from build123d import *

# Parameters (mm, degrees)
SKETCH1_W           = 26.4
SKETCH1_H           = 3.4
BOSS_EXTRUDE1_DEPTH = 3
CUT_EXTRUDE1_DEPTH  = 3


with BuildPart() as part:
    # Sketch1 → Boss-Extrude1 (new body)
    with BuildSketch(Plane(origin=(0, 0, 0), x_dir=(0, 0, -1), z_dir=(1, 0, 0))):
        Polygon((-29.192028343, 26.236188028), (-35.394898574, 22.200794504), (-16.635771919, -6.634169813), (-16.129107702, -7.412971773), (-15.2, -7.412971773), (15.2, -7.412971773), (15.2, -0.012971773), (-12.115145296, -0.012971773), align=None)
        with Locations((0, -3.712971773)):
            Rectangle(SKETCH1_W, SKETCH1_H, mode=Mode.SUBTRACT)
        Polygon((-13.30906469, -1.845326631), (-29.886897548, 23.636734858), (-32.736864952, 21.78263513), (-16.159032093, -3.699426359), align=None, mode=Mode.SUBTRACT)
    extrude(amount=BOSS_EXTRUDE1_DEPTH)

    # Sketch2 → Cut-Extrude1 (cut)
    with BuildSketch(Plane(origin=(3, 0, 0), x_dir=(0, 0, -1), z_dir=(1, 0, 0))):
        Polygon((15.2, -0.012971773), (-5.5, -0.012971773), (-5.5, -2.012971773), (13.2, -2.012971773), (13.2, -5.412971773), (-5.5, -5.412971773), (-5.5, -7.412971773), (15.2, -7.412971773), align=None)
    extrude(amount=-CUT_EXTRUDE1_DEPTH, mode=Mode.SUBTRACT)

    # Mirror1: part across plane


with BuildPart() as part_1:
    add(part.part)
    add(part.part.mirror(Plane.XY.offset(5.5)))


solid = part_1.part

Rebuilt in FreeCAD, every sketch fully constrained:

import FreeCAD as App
import Part
import Sketcher
Q = App.Units.Quantity

doc = App.newDocument("Part")
params = doc.addObject("Spreadsheet::Sheet", "Params")
for row, (alias, value) in enumerate([
    ("sketch1_width", "7.4 mm"),
    ("sketch1_width2", "3.4 mm"),
    ("sketch1_height", "26.4 mm"),
    ("sketch1_length", "7.4 mm"),
    ("sketch1_length2", "34.4 mm"),
    ("pad1_length", "3 mm"),
    ("sketch2_width", "2 mm"),
    ("sketch2_width2", "3.4 mm"),
    ("sketch2_height", "20.7 mm"),
    ("sketch2_height2", "18.7 mm"),
    ("pocket1_length", "3 mm"),
], start=1):
    params.set(f"A{row}", alias)
    params.set(f"B{row}", "=" + value)
    params.setAlias(f"B{row}", alias)

body = doc.addObject("PartDesign::Body", "Body")

# Sketch on YZ plane
sketch1 = doc.addObject("Sketcher::SketchObject", "Sketch")
body.addObject(sketch1)
sketch1.AttachmentSupport = (doc.YZ_Plane, [""])
sketch1.MapMode = "FlatFace"
sketch1.addGeometry(Part.LineSegment(App.Vector(26.2, 29.2, 0), App.Vector(22.2, 35.4, 0)), False)
sketch1.addGeometry(Part.LineSegment(App.Vector(22.2, 35.4, 0), App.Vector(-6.6, 16.6, 0)), False)
sketch1.addGeometry(Part.LineSegment(App.Vector(-6.6, 16.6, 0), App.Vector(-7.4, 16.1, 0)), False)
sketch1.addGeometry(Part.LineSegment(App.Vector(-7.4, 16.1, 0), App.Vector(-7.4, -15.2, 0)), False)
sketch1.addGeometry(Part.LineSegment(App.Vector(-7.4, -15.2, 0), App.Vector(0, -15.2, 0)), False)
sketch1.addGeometry(Part.LineSegment(App.Vector(0, -15.2, 0), App.Vector(0, 12.1, 0)), False)
sketch1.addGeometry(Part.LineSegment(App.Vector(0, 12.1, 0), App.Vector(26.2, 29.2, 0)), False)
sketch1.addGeometry(Part.LineSegment(App.Vector(-5.4, -13.2, 0), App.Vector(-5.4, 13.2, 0)), False)
sketch1.addGeometry(Part.LineSegment(App.Vector(-5.4, 13.2, 0), App.Vector(-2, 13.2, 0)), False)
sketch1.addGeometry(Part.LineSegment(App.Vector(-2, 13.2, 0), App.Vector(-2, -13.2, 0)), False)
sketch1.addGeometry(Part.LineSegment(App.Vector(-2, -13.2, 0), App.Vector(-5.4, -13.2, 0)), False)
sketch1.addGeometry(Part.LineSegment(App.Vector(23.6, 29.9, 0), App.Vector(-1.8, 13.3, 0)), False)
sketch1.addGeometry(Part.LineSegment(App.Vector(-1.8, 13.3, 0), App.Vector(-3.7, 16.2, 0)), False)
sketch1.addGeometry(Part.LineSegment(App.Vector(-3.7, 16.2, 0), App.Vector(21.8, 32.7, 0)), False)
sketch1.addGeometry(Part.LineSegment(App.Vector(21.8, 32.7, 0), App.Vector(23.6, 29.9, 0)), False)
sketch1.addConstraint(Sketcher.Constraint("Coincident", 0, 2, 1, 1))
sketch1.addConstraint(Sketcher.Constraint("Coincident", 1, 2, 2, 1))
sketch1.addConstraint(Sketcher.Constraint("Coincident", 2, 2, 3, 1))
sketch1.addConstraint(Sketcher.Constraint("Coincident", 3, 2, 4, 1))
sketch1.addConstraint(Sketcher.Constraint("Coincident", 4, 2, 5, 1))
sketch1.addConstraint(Sketcher.Constraint("Coincident", 5, 2, 6, 1))
sketch1.addConstraint(Sketcher.Constraint("Coincident", 6, 2, 0, 1))
sketch1.addConstraint(Sketcher.Constraint("Coincident", 7, 2, 8, 1))
sketch1.addConstraint(Sketcher.Constraint("Coincident", 8, 2, 9, 1))
sketch1.addConstraint(Sketcher.Constraint("Coincident", 9, 2, 10, 1))
sketch1.addConstraint(Sketcher.Constraint("Coincident", 10, 2, 7, 1))
sketch1.addConstraint(Sketcher.Constraint("Coincident", 11, 2, 12, 1))
sketch1.addConstraint(Sketcher.Constraint("Coincident", 12, 2, 13, 1))
sketch1.addConstraint(Sketcher.Constraint("Coincident", 13, 2, 14, 1))
sketch1.addConstraint(Sketcher.Constraint("Coincident", 14, 2, 11, 1))
sketch1.addConstraint(Sketcher.Constraint("Vertical", 3))
sketch1.addConstraint(Sketcher.Constraint("Horizontal", 4))
sketch1.addConstraint(Sketcher.Constraint("Vertical", 5))
sketch1.addConstraint(Sketcher.Constraint("Vertical", 7))
sketch1.addConstraint(Sketcher.Constraint("Horizontal", 8))
sketch1.addConstraint(Sketcher.Constraint("Vertical", 9))
sketch1.addConstraint(Sketcher.Constraint("Horizontal", 10))
sketch1.addConstraint(Sketcher.Constraint("Perpendicular", 0, 1))
sketch1.addConstraint(Sketcher.Constraint("Parallel", 1, 2))
sketch1.addConstraint(Sketcher.Constraint("Parallel", 2, 6))
sketch1.addConstraint(Sketcher.Constraint("Parallel", 6, 11))
sketch1.addConstraint(Sketcher.Constraint("Perpendicular", 11, 12))
sketch1.addConstraint(Sketcher.Constraint("Perpendicular", 12, 13))
sketch1.addConstraint(Sketcher.Constraint("Perpendicular", 13, 14))
sketch1.addConstraint(Sketcher.Constraint("DistanceX", 4, 1, 4, 2, Q("7.4 mm")))
sketch1.addConstraint(Sketcher.Constraint("DistanceX", 8, 1, 8, 2, Q("3.4 mm")))
sketch1.addConstraint(Sketcher.Constraint("DistanceY", 7, 1, 7, 2, Q("26.4 mm")))
sketch1.addConstraint(Sketcher.Constraint("DistanceX", 2, 2, 7, 2, Q("2 mm")))
sketch1.addConstraint(Sketcher.Constraint("DistanceY", 4, 2, 9, 2, Q("2 mm")))
sketch1.addConstraint(Sketcher.Constraint("Distance", 0, Q("7.4 mm")))
sketch1.addConstraint(Sketcher.Constraint("Distance", 1, Q("34.4 mm")))
sketch1.addConstraint(Sketcher.Constraint("Distance", 11, Q("30.4 mm")))
sketch1.addConstraint(Sketcher.Constraint("Distance", 12, Q("3.4 mm")))
sketch1.addConstraint(Sketcher.Constraint("DistanceY", 3, 2, -1, 1, Q("15.2 mm")))
sketch1.addConstraint(Sketcher.Constraint("DistanceY", 14, 2, 0, 2, Q("5.508001 mm")))
sketch1.addConstraint(Sketcher.Constraint("DistanceY", -1, 1, 0, 2, Q("35.394899 mm")))
sketch1.addConstraint(Sketcher.Constraint("DistanceX", 2, 2, 1, 2, Q("0.778802 mm")))
sketch1.addConstraint(Sketcher.Constraint("DistanceX", 12, 2, 11, 2, Q("1.8541 mm")))
sketch1.addConstraint(Sketcher.Constraint("DistanceX", 1, 2, -1, 1, Q("6.63417 mm")))
sketch1.addConstraint(Sketcher.Constraint("DistanceX", 13, 2, 0, 2, Q("0.418159 mm")))
sketch1.setExpression("Constraints[29]", "Params.sketch1_width")
sketch1.setExpression("Constraints[30]", "Params.sketch1_width2")
sketch1.setExpression("Constraints[31]", "Params.sketch1_height")
sketch1.setExpression("Constraints[34]", "Params.sketch1_length")
sketch1.setExpression("Constraints[35]", "Params.sketch1_length2")
pad1 = doc.addObject("PartDesign::Pad", "Pad")
body.addObject(pad1)
pad1.Profile = sketch1
pad1.setExpression("Length", "Params.pad1_length")

# Sketch on YZ plane
sketch2 = doc.addObject("Sketcher::SketchObject", "Sketch001")
body.addObject(sketch2)
sketch2.AttachmentSupport = (doc.YZ_Plane, [""])
sketch2.MapMode = "FlatFace"
sketch2.AttachmentOffset = App.Placement(App.Vector(0, 0, 3), App.Rotation())
sketch2.addGeometry(Part.LineSegment(App.Vector(0, -15.2, 0), App.Vector(0, 5.5, 0)), False)
sketch2.addGeometry(Part.LineSegment(App.Vector(0, 5.5, 0), App.Vector(-2, 5.5, 0)), False)
sketch2.addGeometry(Part.LineSegment(App.Vector(-2, 5.5, 0), App.Vector(-2, -13.2, 0)), False)
sketch2.addGeometry(Part.LineSegment(App.Vector(-2, -13.2, 0), App.Vector(-5.4, -13.2, 0)), False)
sketch2.addGeometry(Part.LineSegment(App.Vector(-5.4, -13.2, 0), App.Vector(-5.4, 5.5, 0)), False)
sketch2.addGeometry(Part.LineSegment(App.Vector(-5.4, 5.5, 0), App.Vector(-7.4, 5.5, 0)), False)
sketch2.addGeometry(Part.LineSegment(App.Vector(-7.4, 5.5, 0), App.Vector(-7.4, -15.2, 0)), False)
sketch2.addGeometry(Part.LineSegment(App.Vector(-7.4, -15.2, 0), App.Vector(0, -15.2, 0)), False)
sketch2.addConstraint(Sketcher.Constraint("Coincident", 0, 2, 1, 1))
sketch2.addConstraint(Sketcher.Constraint("Coincident", 1, 2, 2, 1))
sketch2.addConstraint(Sketcher.Constraint("Coincident", 2, 2, 3, 1))
sketch2.addConstraint(Sketcher.Constraint("Coincident", 3, 2, 4, 1))
sketch2.addConstraint(Sketcher.Constraint("Coincident", 4, 2, 5, 1))
sketch2.addConstraint(Sketcher.Constraint("Coincident", 5, 2, 6, 1))
sketch2.addConstraint(Sketcher.Constraint("Coincident", 6, 2, 7, 1))
sketch2.addConstraint(Sketcher.Constraint("Coincident", 7, 2, 0, 1))
sketch2.addConstraint(Sketcher.Constraint("Vertical", 0))
sketch2.addConstraint(Sketcher.Constraint("Horizontal", 1))
sketch2.addConstraint(Sketcher.Constraint("Vertical", 2))
sketch2.addConstraint(Sketcher.Constraint("Horizontal", 3))
sketch2.addConstraint(Sketcher.Constraint("Vertical", 4))
sketch2.addConstraint(Sketcher.Constraint("Horizontal", 5))
sketch2.addConstraint(Sketcher.Constraint("Vertical", 6))
sketch2.addConstraint(Sketcher.Constraint("Horizontal", 7))
sketch2.addConstraint(Sketcher.Constraint("Horizontal", 1, 2, 4, 2))
sketch2.addConstraint(Sketcher.Constraint("Equal", 1, 5))
sketch2.addConstraint(Sketcher.Constraint("DistanceX", 1, 2, 1, 1, Q("2 mm")))
sketch2.addConstraint(Sketcher.Constraint("DistanceX", 3, 2, 3, 1, Q("3.4 mm")))
sketch2.addConstraint(Sketcher.Constraint("DistanceY", 0, 1, 0, 2, Q("20.7 mm")))
sketch2.addConstraint(Sketcher.Constraint("DistanceY", 2, 2, 2, 1, Q("18.7 mm")))
sketch2.addConstraint(Sketcher.Constraint("DistanceY", -1, 1, 0, 2, Q("5.5 mm")))
sketch2.addConstraint(Sketcher.Constraint("DistanceX", 0, 2, -1, 1, Q("0.012972 mm")))
sketch2.setExpression("Constraints[18]", "Params.sketch2_width")
sketch2.setExpression("Constraints[19]", "Params.sketch2_width2")
sketch2.setExpression("Constraints[20]", "Params.sketch2_height")
sketch2.setExpression("Constraints[21]", "Params.sketch2_height2")
pocket1 = doc.addObject("PartDesign::Pocket", "Pocket")
body.addObject(pocket1)
pocket1.Profile = sketch2
pocket1.setExpression("Length", "Params.pocket1_length")
body2 = doc.addObject("PartDesign::Body", "Body001")
doc.recompute()

body2.BaseFeature = body
doc.recompute()

mirroring = doc.addObject("Part::Mirroring", "Mirroring")
mirroring.Source = body
mirroring.Base = App.Vector(0, 0, 5.5)
mirroring.Normal = App.Vector(0, 0, 1)
body3 = doc.addObject("PartDesign::Body", "Body002")
body3.BaseFeature = mirroring
boolean = doc.addObject("PartDesign::Boolean", "Boolean")
body2.addObject(boolean)
boolean.Type = "Fuse"
boolean.addObjects([body3])
doc.recompute()
mirroring.Visibility = False

doc.recompute()
